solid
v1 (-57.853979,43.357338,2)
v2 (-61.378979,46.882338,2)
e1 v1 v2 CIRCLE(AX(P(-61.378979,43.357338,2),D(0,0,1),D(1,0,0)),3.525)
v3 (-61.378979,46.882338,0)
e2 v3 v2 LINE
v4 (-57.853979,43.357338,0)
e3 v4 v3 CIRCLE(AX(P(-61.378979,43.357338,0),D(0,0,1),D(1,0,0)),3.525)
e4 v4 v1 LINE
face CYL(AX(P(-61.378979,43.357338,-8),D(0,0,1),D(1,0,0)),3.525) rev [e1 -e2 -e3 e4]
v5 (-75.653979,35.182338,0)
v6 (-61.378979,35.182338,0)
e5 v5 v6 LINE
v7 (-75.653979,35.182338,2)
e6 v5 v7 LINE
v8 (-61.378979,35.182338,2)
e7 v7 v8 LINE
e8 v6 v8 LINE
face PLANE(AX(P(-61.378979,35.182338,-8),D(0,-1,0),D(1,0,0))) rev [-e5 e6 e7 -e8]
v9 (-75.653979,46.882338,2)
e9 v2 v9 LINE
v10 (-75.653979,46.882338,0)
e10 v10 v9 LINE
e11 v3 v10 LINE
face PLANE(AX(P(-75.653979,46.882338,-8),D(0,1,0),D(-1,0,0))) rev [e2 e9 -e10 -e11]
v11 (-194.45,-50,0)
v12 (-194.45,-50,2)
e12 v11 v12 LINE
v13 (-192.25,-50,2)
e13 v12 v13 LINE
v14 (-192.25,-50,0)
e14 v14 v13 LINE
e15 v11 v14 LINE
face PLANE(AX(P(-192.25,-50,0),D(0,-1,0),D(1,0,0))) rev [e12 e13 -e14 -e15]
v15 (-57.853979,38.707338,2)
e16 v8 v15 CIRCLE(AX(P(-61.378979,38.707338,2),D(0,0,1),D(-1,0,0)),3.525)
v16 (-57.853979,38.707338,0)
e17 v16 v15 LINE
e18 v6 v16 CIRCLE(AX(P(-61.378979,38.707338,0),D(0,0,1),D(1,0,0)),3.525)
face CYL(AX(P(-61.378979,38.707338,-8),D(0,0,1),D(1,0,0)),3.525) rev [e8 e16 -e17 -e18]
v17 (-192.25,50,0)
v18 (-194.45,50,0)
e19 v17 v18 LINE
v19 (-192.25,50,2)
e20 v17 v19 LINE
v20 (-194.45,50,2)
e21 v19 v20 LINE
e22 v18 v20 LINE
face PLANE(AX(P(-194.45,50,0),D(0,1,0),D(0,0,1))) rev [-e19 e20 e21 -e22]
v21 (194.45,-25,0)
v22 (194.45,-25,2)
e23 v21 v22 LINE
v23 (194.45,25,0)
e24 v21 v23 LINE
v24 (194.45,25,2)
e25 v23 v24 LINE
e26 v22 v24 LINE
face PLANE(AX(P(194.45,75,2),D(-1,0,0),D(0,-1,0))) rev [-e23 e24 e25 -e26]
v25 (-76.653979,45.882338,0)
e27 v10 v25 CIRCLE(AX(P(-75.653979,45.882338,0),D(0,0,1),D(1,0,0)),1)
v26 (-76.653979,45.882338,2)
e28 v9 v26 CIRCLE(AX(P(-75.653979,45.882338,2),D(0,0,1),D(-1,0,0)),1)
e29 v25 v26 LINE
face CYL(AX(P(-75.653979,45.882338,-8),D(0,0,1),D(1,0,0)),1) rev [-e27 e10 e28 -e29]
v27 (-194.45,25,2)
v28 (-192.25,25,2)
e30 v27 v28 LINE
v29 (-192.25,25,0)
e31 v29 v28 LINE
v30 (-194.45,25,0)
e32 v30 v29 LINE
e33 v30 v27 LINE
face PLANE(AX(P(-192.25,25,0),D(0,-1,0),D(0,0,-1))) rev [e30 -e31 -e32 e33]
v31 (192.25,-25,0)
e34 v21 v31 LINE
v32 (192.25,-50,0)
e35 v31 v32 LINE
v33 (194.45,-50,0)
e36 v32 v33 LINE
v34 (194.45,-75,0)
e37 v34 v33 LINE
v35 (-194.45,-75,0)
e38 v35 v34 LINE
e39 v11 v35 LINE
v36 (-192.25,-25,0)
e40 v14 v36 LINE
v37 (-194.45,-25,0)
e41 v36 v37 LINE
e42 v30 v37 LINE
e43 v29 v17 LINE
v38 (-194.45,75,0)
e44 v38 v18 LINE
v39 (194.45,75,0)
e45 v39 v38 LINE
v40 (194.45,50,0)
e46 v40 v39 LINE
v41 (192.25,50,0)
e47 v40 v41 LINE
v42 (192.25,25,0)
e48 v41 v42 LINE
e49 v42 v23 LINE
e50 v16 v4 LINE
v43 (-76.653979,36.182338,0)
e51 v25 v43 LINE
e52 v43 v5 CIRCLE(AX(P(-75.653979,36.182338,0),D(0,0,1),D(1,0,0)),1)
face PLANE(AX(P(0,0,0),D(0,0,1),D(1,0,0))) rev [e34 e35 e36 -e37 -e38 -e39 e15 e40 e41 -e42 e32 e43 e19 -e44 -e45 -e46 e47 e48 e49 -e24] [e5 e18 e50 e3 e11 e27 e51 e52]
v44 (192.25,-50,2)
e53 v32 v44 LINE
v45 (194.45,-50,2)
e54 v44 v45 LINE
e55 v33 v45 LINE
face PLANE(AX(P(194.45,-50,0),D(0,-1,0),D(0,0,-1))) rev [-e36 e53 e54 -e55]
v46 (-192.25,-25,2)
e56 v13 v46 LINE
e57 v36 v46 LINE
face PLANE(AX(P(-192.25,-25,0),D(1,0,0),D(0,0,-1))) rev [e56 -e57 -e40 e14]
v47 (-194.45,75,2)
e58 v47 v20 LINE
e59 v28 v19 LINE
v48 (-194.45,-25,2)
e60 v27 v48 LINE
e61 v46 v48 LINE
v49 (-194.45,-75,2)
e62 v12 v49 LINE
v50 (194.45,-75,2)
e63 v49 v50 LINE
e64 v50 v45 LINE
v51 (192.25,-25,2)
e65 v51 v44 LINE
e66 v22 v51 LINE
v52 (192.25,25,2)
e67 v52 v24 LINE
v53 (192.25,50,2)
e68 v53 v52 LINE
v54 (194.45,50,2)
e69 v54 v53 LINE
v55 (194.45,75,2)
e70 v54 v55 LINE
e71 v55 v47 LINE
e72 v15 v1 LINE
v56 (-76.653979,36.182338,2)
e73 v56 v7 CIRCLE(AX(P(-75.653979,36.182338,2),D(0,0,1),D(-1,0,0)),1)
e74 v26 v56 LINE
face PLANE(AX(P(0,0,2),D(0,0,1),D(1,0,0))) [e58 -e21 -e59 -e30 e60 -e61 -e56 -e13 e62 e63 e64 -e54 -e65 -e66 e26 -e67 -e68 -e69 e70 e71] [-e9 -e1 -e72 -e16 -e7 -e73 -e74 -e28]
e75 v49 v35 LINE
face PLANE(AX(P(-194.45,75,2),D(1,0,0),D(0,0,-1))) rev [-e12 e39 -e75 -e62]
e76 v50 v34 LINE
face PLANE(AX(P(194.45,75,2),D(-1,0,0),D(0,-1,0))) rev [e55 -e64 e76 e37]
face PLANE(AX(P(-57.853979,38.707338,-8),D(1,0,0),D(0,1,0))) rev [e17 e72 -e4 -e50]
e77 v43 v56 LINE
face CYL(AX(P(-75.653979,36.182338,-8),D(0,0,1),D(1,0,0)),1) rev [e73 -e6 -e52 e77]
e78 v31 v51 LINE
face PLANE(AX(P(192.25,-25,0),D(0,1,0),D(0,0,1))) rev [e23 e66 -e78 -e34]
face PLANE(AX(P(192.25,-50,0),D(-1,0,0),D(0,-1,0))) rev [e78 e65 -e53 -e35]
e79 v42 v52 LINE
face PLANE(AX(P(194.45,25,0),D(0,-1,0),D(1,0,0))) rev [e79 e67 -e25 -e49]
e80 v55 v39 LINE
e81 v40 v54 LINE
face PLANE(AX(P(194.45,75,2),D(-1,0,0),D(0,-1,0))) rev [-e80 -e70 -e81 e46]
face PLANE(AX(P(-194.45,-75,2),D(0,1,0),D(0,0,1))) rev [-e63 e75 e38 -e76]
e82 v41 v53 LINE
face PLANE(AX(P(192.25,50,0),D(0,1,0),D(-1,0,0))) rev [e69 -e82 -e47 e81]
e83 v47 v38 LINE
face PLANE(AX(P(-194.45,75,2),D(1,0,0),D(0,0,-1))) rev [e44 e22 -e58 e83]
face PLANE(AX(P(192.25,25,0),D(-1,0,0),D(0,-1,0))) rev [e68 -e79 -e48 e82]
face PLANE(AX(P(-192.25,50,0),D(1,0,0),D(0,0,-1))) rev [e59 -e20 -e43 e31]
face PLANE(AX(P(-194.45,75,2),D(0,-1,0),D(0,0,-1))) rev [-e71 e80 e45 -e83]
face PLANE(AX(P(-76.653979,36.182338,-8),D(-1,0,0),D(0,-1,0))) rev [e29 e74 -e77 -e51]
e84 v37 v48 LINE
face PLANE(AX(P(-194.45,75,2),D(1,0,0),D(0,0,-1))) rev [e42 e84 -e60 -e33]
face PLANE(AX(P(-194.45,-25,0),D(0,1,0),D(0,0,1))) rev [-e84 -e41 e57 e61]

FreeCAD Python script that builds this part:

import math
import FreeCAD as App
import Part
import Sketcher

doc = App.newDocument("Part")
params = doc.addObject("Spreadsheet::Sheet", "Params")
for row, (alias, value) in enumerate([
    ("sketch1_height", "150 mm"),
    ("sketch1_width", "388.9 mm"),
    ("pad1_length", "2 mm"),
    ("sketch2_height", "25 mm"),
    ("sketch2_height2", "150 mm"),
    ("sketch2_width", "2.2 mm"),
    ("pocket1_length", "2 mm"),
    ("sketch3_radius", "1 mm"),
    ("sketch3_height", "9.7 mm"),
    ("pocket2_length", "10 mm"),
], start=1):
    params.set(f"A{row}", alias)
    params.set(f"B{row}", "=" + value)
    params.setAlias(f"B{row}", alias)

body = doc.addObject("PartDesign::Body", "Body")

sketch1 = doc.addObject("Sketcher::SketchObject", "Sketch")
body.addObject(sketch1)
sketch1.AttachmentSupport = (doc.XY_Plane, [""])
sketch1.MapMode = "FlatFace"
sketch1.addGeometry([
    Part.LineSegment(App.Vector(-194.45, 75, 0), App.Vector(-194.45, -75, 0)),
    Part.LineSegment(App.Vector(-194.45, -75, 0), App.Vector(194.45, -75, 0)),
    Part.LineSegment(App.Vector(194.45, -75, 0), App.Vector(194.45, 75, 0)),
    Part.LineSegment(App.Vector(194.45, 75, 0), App.Vector(-194.45, 75, 0)),
], False)
sketch1.addConstraint([
    Sketcher.Constraint("Coincident", 0, 2, 1, 1),
    Sketcher.Constraint("Coincident", 1, 2, 2, 1),
    Sketcher.Constraint("Coincident", 2, 2, 3, 1),
    Sketcher.Constraint("Coincident", 3, 2, 0, 1),
    Sketcher.Constraint("Vertical", 0),
    Sketcher.Constraint("Horizontal", 1),
    Sketcher.Constraint("Vertical", 2),
    Sketcher.Constraint("Horizontal", 3),
    Sketcher.Constraint("Symmetric", 0, 2, 2, 2, -1, 1),
    Sketcher.Constraint("DistanceY", 0, 2, 0, 1, 150.0),
    Sketcher.Constraint("DistanceX", 1, 1, 1, 2, 388.9),
])
sketch1.setExpression("Constraints[9]", "Params.sketch1_height")
sketch1.setExpression("Constraints[10]", "Params.sketch1_width")
pad1 = doc.addObject("PartDesign::Pad", "Pad")
body.addObject(pad1)
pad1.Profile = sketch1
pad1.setExpression("Length", "Params.pad1_length")

sketch2 = doc.addObject("Sketcher::SketchObject", "Sketch001")
body.addObject(sketch2)
sketch2.AttachmentSupport = (doc.XY_Plane, [""])
sketch2.MapMode = "FlatFace"
sketch2.AttachmentOffset = App.Placement(App.Vector(0, 0, 2), App.Rotation())
sketch2.addGeometry([
    Part.LineSegment(App.Vector(-194.45, 50, 0), App.Vector(-194.45, 75, 0)),
    Part.LineSegment(App.Vector(-194.45, 75, 0), App.Vector(-200.131659, 75, 0)),
    Part.LineSegment(App.Vector(-200.131659, 75, 0), App.Vector(-200.131659, -75, 0)),
    Part.LineSegment(App.Vector(-200.131659, -75, 0), App.Vector(-194.45, -75, 0)),
    Part.LineSegment(App.Vector(-194.45, -75, 0), App.Vector(-194.45, -50, 0)),
    Part.LineSegment(App.Vector(-194.45, -50, 0), App.Vector(-192.25, -50, 0)),
    Part.LineSegment(App.Vector(-192.25, -50, 0), App.Vector(-192.25, -25, 0)),
    Part.LineSegment(App.Vector(-192.25, -25, 0), App.Vector(-194.45, -25, 0)),
    Part.LineSegment(App.Vector(-194.45, -25, 0), App.Vector(-194.45, 25, 0)),
    Part.LineSegment(App.Vector(-194.45, 25, 0), App.Vector(-192.25, 25, 0)),
    Part.LineSegment(App.Vector(-192.25, 25, 0), App.Vector(-192.25, 50, 0)),
    Part.LineSegment(App.Vector(-192.25, 50, 0), App.Vector(-194.45, 50, 0)),
    Part.LineSegment(App.Vector(194.45, -50, 0), App.Vector(194.45, -75, 0)),
    Part.LineSegment(App.Vector(194.45, -75, 0), App.Vector(200.131659, -75, 0)),
    Part.LineSegment(App.Vector(200.131659, -75, 0), App.Vector(200.131659, 75, 0)),
    Part.LineSegment(App.Vector(200.131659, 75, 0), App.Vector(194.45, 75, 0)),
    Part.LineSegment(App.Vector(194.45, 75, 0), App.Vector(194.45, 50, 0)),
    Part.LineSegment(App.Vector(194.45, 50, 0), App.Vector(192.25, 50, 0)),
    Part.LineSegment(App.Vector(192.25, 50, 0), App.Vector(192.25, 25, 0)),
    Part.LineSegment(App.Vector(192.25, 25, 0), App.Vector(194.45, 25, 0)),
    Part.LineSegment(App.Vector(194.45, 25, 0), App.Vector(194.45, -25, 0)),
    Part.LineSegment(App.Vector(194.45, -25, 0), App.Vector(192.25, -25, 0)),
    Part.LineSegment(App.Vector(192.25, -25, 0), App.Vector(192.25, -50, 0)),
    Part.LineSegment(App.Vector(192.25, -50, 0), App.Vector(194.45, -50, 0)),
], False)
sketch2.addConstraint([
    Sketcher.Constraint("Coincident", 0, 2, 1, 1),
    Sketcher.Constraint("Coincident", 1, 2, 2, 1),
    Sketcher.Constraint("Coincident", 2, 2, 3, 1),
    Sketcher.Constraint("Coincident", 3, 2, 4, 1),
    Sketcher.Constraint("Coincident", 4, 2, 5, 1),
    Sketcher.Constraint("Coincident", 5, 2, 6, 1),
    Sketcher.Constraint("Coincident", 6, 2, 7, 1),
    Sketcher.Constraint("Coincident", 7, 2, 8, 1),
    Sketcher.Constraint("Coincident", 8, 2, 9, 1),
    Sketcher.Constraint("Coincident", 9, 2, 10, 1),
    Sketcher.Constraint("Coincident", 10, 2, 11, 1),
    Sketcher.Constraint("Coincident", 11, 2, 0, 1),
    Sketcher.Constraint("Coincident", 12, 2, 13, 1),
    Sketcher.Constraint("Coincident", 13, 2, 14, 1),
    Sketcher.Constraint("Coincident", 14, 2, 15, 1),
    Sketcher.Constraint("Coincident", 15, 2, 16, 1),
    Sketcher.Constraint("Coincident", 16, 2, 17, 1),
    Sketcher.Constraint("Coincident", 17, 2, 18, 1),
    Sketcher.Constraint("Coincident", 18, 2, 19, 1),
    Sketcher.Constraint("Coincident", 19, 2, 20, 1),
    Sketcher.Constraint("Coincident", 20, 2, 21, 1),
    Sketcher.Constraint("Coincident", 21, 2, 22, 1),
    Sketcher.Constraint("Coincident", 22, 2, 23, 1),
    Sketcher.Constraint("Coincident", 23, 2, 12, 1),
    Sketcher.Constraint("Vertical", 0),
    Sketcher.Constraint("Horizontal", 1),
    Sketcher.Constraint("Vertical", 2),
    Sketcher.Constraint("Horizontal", 3),
    Sketcher.Constraint("Vertical", 4),
    Sketcher.Constraint("Horizontal", 5),
    Sketcher.Constraint("Vertical", 6),
    Sketcher.Constraint("Horizontal", 7),
    Sketcher.Constraint("Vertical", 8),
    Sketcher.Constraint("Horizontal", 9),
    Sketcher.Constraint("Vertical", 10),
    Sketcher.Constraint("Horizontal", 11),
    Sketcher.Constraint("Vertical", 12),
    Sketcher.Constraint("Horizontal", 13),
    Sketcher.Constraint("Vertical", 14),
    Sketcher.Constraint("Horizontal", 15),
    Sketcher.Constraint("Vertical", 16),
    Sketcher.Constraint("Horizontal", 17),
    Sketcher.Constraint("Vertical", 18),
    Sketcher.Constraint("Horizontal", 19),
    Sketcher.Constraint("Vertical", 20),
    Sketcher.Constraint("Horizontal", 21),
    Sketcher.Constraint("Vertical", 22),
    Sketcher.Constraint("Horizontal", 23),
    Sketcher.Constraint("Symmetric", 0, 2, 12, 2, -1, 1),
    Sketcher.Constraint("Symmetric", 2, 2, 14, 2, -1, 1),
    Sketcher.Constraint("Symmetric", 4, 2, 16, 2, -1, 1),
    Sketcher.Constraint("Symmetric", 6, 2, 18, 2, -1, 1),
    Sketcher.Constraint("Symmetric", 8, 2, 20, 2, -1, 1),
    Sketcher.Constraint("Symmetric", 10, 2, 22, 2, -1, 1),
    Sketcher.Constraint("Symmetric", 3, 2, 12, 2, -2),
    Sketcher.Constraint("Symmetric", 10, 2, 17, 2, -2),
    Sketcher.Constraint("Horizontal", 9, 2, 18, 2),
    Sketcher.Constraint("Vertical", 4, 2, 7, 2),
    Sketcher.Constraint("Equal", 4, 6),
    Sketcher.Constraint("DistanceY", 0, 1, 0, 2, 25.0),
    Sketcher.Constraint("DistanceY", 2, 2, 2, 1, 150.0),
    Sketcher.Constraint("DistanceX", 5, 1, 5, 2, 2.2),
    Sketcher.Constraint("DistanceX", 5, 2, 12, 2, 386.7),
    Sketcher.Constraint("DistanceX", 1, 2, 1, 1, 5.681659),
])
sketch2.setExpression("Constraints[59]", "Params.sketch2_height")
sketch2.setExpression("Constraints[60]", "Params.sketch2_height2")
sketch2.setExpression("Constraints[61]", "Params.sketch2_width")
pocket1 = doc.addObject("PartDesign::Pocket", "Pocket")
body.addObject(pocket1)
pocket1.Profile = sketch2
pocket1.setExpression("Length", "Params.pocket1_length")

sketch3 = doc.addObject("Sketcher::SketchObject", "Sketch002")
body.addObject(sketch3)
sketch3.AttachmentSupport = (doc.XY_Plane, [""])
sketch3.MapMode = "FlatFace"
sketch3.AttachmentOffset = App.Placement(App.Vector(0, 0, 2), App.Rotation())
sketch3.addGeometry([
    Part.LineSegment(App.Vector(-75.653979, 35.182338, 0), App.Vector(-61.378979, 35.182338, 0)),
    Part.ArcOfCircle(Part.Circle(App.Vector(-61.378979, 38.707338, 0), App.Vector(0, 0, 1), 3.525), math.radians(-90), math.radians(0)),
    Part.LineSegment(App.Vector(-57.853979, 38.707338, 0), App.Vector(-57.853979, 43.357338, 0)),
    Part.ArcOfCircle(Part.Circle(App.Vector(-61.378979, 43.357338, 0), App.Vector(0, 0, 1), 3.525), math.radians(0), math.radians(90)),
    Part.LineSegment(App.Vector(-61.378979, 46.882338, 0), App.Vector(-75.653979, 46.882338, 0)),
    Part.ArcOfCircle(Part.Circle(App.Vector(-75.653979, 45.882338, 0), App.Vector(0, 0, 1), 1), math.radians(90), math.radians(180)),
    Part.LineSegment(App.Vector(-76.653979, 45.882338, 0), App.Vector(-76.653979, 36.182338, 0)),
    Part.ArcOfCircle(Part.Circle(App.Vector(-75.653979, 36.182338, 0), App.Vector(0, 0, 1), 1), math.radians(180), math.radians(270)),
], False)
sketch3.addConstraint([
    Sketcher.Constraint("Tangent", 0, 2, 1, 1),
    Sketcher.Constraint("Tangent", 1, 2, 2, 1),
    Sketcher.Constraint("Tangent", 2, 2, 3, 1),
    Sketcher.Constraint("Tangent", 3, 2, 4, 1),
    Sketcher.Constraint("Tangent", 4, 2, 5, 1),
    Sketcher.Constraint("Tangent", 5, 2, 6, 1),
    Sketcher.Constraint("Tangent", 6, 2, 7, 1),
    Sketcher.Constraint("Tangent", 7, 2, 0, 1),
    Sketcher.Constraint("Horizontal", 0),
    Sketcher.Constraint("Vertical", 2),
    Sketcher.Constraint("Horizontal", 4),
    Sketcher.Constraint("Vertical", 6),
    Sketcher.Constraint("Equal", 1, 3),
    Sketcher.Constraint("Equal", 5, 7),
    Sketcher.Constraint("Radius", 5, 1.0),
    Sketcher.Constraint("DistanceY", 6, 2, 6, 1, 9.7),
    Sketcher.Constraint("Radius", 1, 3.525),
    Sketcher.Constraint("DistanceX", 7, 3, 1, 2, 17.8),
    Sketcher.Constraint("DistanceX", 1, 3, -1, 1, 61.378979),
    Sketcher.Constraint("DistanceY", -1, 1, 1, 3, 38.707338),
])
sketch3.setExpression("Constraints[14]", "Params.sketch3_radius")
sketch3.setExpression("Constraints[15]", "Params.sketch3_height")
pocket2 = doc.addObject("PartDesign::Pocket", "Pocket001")
body.addObject(pocket2)
pocket2.Profile = sketch3
pocket2.setExpression("Length", "Params.pocket2_length")

doc.recompute()
